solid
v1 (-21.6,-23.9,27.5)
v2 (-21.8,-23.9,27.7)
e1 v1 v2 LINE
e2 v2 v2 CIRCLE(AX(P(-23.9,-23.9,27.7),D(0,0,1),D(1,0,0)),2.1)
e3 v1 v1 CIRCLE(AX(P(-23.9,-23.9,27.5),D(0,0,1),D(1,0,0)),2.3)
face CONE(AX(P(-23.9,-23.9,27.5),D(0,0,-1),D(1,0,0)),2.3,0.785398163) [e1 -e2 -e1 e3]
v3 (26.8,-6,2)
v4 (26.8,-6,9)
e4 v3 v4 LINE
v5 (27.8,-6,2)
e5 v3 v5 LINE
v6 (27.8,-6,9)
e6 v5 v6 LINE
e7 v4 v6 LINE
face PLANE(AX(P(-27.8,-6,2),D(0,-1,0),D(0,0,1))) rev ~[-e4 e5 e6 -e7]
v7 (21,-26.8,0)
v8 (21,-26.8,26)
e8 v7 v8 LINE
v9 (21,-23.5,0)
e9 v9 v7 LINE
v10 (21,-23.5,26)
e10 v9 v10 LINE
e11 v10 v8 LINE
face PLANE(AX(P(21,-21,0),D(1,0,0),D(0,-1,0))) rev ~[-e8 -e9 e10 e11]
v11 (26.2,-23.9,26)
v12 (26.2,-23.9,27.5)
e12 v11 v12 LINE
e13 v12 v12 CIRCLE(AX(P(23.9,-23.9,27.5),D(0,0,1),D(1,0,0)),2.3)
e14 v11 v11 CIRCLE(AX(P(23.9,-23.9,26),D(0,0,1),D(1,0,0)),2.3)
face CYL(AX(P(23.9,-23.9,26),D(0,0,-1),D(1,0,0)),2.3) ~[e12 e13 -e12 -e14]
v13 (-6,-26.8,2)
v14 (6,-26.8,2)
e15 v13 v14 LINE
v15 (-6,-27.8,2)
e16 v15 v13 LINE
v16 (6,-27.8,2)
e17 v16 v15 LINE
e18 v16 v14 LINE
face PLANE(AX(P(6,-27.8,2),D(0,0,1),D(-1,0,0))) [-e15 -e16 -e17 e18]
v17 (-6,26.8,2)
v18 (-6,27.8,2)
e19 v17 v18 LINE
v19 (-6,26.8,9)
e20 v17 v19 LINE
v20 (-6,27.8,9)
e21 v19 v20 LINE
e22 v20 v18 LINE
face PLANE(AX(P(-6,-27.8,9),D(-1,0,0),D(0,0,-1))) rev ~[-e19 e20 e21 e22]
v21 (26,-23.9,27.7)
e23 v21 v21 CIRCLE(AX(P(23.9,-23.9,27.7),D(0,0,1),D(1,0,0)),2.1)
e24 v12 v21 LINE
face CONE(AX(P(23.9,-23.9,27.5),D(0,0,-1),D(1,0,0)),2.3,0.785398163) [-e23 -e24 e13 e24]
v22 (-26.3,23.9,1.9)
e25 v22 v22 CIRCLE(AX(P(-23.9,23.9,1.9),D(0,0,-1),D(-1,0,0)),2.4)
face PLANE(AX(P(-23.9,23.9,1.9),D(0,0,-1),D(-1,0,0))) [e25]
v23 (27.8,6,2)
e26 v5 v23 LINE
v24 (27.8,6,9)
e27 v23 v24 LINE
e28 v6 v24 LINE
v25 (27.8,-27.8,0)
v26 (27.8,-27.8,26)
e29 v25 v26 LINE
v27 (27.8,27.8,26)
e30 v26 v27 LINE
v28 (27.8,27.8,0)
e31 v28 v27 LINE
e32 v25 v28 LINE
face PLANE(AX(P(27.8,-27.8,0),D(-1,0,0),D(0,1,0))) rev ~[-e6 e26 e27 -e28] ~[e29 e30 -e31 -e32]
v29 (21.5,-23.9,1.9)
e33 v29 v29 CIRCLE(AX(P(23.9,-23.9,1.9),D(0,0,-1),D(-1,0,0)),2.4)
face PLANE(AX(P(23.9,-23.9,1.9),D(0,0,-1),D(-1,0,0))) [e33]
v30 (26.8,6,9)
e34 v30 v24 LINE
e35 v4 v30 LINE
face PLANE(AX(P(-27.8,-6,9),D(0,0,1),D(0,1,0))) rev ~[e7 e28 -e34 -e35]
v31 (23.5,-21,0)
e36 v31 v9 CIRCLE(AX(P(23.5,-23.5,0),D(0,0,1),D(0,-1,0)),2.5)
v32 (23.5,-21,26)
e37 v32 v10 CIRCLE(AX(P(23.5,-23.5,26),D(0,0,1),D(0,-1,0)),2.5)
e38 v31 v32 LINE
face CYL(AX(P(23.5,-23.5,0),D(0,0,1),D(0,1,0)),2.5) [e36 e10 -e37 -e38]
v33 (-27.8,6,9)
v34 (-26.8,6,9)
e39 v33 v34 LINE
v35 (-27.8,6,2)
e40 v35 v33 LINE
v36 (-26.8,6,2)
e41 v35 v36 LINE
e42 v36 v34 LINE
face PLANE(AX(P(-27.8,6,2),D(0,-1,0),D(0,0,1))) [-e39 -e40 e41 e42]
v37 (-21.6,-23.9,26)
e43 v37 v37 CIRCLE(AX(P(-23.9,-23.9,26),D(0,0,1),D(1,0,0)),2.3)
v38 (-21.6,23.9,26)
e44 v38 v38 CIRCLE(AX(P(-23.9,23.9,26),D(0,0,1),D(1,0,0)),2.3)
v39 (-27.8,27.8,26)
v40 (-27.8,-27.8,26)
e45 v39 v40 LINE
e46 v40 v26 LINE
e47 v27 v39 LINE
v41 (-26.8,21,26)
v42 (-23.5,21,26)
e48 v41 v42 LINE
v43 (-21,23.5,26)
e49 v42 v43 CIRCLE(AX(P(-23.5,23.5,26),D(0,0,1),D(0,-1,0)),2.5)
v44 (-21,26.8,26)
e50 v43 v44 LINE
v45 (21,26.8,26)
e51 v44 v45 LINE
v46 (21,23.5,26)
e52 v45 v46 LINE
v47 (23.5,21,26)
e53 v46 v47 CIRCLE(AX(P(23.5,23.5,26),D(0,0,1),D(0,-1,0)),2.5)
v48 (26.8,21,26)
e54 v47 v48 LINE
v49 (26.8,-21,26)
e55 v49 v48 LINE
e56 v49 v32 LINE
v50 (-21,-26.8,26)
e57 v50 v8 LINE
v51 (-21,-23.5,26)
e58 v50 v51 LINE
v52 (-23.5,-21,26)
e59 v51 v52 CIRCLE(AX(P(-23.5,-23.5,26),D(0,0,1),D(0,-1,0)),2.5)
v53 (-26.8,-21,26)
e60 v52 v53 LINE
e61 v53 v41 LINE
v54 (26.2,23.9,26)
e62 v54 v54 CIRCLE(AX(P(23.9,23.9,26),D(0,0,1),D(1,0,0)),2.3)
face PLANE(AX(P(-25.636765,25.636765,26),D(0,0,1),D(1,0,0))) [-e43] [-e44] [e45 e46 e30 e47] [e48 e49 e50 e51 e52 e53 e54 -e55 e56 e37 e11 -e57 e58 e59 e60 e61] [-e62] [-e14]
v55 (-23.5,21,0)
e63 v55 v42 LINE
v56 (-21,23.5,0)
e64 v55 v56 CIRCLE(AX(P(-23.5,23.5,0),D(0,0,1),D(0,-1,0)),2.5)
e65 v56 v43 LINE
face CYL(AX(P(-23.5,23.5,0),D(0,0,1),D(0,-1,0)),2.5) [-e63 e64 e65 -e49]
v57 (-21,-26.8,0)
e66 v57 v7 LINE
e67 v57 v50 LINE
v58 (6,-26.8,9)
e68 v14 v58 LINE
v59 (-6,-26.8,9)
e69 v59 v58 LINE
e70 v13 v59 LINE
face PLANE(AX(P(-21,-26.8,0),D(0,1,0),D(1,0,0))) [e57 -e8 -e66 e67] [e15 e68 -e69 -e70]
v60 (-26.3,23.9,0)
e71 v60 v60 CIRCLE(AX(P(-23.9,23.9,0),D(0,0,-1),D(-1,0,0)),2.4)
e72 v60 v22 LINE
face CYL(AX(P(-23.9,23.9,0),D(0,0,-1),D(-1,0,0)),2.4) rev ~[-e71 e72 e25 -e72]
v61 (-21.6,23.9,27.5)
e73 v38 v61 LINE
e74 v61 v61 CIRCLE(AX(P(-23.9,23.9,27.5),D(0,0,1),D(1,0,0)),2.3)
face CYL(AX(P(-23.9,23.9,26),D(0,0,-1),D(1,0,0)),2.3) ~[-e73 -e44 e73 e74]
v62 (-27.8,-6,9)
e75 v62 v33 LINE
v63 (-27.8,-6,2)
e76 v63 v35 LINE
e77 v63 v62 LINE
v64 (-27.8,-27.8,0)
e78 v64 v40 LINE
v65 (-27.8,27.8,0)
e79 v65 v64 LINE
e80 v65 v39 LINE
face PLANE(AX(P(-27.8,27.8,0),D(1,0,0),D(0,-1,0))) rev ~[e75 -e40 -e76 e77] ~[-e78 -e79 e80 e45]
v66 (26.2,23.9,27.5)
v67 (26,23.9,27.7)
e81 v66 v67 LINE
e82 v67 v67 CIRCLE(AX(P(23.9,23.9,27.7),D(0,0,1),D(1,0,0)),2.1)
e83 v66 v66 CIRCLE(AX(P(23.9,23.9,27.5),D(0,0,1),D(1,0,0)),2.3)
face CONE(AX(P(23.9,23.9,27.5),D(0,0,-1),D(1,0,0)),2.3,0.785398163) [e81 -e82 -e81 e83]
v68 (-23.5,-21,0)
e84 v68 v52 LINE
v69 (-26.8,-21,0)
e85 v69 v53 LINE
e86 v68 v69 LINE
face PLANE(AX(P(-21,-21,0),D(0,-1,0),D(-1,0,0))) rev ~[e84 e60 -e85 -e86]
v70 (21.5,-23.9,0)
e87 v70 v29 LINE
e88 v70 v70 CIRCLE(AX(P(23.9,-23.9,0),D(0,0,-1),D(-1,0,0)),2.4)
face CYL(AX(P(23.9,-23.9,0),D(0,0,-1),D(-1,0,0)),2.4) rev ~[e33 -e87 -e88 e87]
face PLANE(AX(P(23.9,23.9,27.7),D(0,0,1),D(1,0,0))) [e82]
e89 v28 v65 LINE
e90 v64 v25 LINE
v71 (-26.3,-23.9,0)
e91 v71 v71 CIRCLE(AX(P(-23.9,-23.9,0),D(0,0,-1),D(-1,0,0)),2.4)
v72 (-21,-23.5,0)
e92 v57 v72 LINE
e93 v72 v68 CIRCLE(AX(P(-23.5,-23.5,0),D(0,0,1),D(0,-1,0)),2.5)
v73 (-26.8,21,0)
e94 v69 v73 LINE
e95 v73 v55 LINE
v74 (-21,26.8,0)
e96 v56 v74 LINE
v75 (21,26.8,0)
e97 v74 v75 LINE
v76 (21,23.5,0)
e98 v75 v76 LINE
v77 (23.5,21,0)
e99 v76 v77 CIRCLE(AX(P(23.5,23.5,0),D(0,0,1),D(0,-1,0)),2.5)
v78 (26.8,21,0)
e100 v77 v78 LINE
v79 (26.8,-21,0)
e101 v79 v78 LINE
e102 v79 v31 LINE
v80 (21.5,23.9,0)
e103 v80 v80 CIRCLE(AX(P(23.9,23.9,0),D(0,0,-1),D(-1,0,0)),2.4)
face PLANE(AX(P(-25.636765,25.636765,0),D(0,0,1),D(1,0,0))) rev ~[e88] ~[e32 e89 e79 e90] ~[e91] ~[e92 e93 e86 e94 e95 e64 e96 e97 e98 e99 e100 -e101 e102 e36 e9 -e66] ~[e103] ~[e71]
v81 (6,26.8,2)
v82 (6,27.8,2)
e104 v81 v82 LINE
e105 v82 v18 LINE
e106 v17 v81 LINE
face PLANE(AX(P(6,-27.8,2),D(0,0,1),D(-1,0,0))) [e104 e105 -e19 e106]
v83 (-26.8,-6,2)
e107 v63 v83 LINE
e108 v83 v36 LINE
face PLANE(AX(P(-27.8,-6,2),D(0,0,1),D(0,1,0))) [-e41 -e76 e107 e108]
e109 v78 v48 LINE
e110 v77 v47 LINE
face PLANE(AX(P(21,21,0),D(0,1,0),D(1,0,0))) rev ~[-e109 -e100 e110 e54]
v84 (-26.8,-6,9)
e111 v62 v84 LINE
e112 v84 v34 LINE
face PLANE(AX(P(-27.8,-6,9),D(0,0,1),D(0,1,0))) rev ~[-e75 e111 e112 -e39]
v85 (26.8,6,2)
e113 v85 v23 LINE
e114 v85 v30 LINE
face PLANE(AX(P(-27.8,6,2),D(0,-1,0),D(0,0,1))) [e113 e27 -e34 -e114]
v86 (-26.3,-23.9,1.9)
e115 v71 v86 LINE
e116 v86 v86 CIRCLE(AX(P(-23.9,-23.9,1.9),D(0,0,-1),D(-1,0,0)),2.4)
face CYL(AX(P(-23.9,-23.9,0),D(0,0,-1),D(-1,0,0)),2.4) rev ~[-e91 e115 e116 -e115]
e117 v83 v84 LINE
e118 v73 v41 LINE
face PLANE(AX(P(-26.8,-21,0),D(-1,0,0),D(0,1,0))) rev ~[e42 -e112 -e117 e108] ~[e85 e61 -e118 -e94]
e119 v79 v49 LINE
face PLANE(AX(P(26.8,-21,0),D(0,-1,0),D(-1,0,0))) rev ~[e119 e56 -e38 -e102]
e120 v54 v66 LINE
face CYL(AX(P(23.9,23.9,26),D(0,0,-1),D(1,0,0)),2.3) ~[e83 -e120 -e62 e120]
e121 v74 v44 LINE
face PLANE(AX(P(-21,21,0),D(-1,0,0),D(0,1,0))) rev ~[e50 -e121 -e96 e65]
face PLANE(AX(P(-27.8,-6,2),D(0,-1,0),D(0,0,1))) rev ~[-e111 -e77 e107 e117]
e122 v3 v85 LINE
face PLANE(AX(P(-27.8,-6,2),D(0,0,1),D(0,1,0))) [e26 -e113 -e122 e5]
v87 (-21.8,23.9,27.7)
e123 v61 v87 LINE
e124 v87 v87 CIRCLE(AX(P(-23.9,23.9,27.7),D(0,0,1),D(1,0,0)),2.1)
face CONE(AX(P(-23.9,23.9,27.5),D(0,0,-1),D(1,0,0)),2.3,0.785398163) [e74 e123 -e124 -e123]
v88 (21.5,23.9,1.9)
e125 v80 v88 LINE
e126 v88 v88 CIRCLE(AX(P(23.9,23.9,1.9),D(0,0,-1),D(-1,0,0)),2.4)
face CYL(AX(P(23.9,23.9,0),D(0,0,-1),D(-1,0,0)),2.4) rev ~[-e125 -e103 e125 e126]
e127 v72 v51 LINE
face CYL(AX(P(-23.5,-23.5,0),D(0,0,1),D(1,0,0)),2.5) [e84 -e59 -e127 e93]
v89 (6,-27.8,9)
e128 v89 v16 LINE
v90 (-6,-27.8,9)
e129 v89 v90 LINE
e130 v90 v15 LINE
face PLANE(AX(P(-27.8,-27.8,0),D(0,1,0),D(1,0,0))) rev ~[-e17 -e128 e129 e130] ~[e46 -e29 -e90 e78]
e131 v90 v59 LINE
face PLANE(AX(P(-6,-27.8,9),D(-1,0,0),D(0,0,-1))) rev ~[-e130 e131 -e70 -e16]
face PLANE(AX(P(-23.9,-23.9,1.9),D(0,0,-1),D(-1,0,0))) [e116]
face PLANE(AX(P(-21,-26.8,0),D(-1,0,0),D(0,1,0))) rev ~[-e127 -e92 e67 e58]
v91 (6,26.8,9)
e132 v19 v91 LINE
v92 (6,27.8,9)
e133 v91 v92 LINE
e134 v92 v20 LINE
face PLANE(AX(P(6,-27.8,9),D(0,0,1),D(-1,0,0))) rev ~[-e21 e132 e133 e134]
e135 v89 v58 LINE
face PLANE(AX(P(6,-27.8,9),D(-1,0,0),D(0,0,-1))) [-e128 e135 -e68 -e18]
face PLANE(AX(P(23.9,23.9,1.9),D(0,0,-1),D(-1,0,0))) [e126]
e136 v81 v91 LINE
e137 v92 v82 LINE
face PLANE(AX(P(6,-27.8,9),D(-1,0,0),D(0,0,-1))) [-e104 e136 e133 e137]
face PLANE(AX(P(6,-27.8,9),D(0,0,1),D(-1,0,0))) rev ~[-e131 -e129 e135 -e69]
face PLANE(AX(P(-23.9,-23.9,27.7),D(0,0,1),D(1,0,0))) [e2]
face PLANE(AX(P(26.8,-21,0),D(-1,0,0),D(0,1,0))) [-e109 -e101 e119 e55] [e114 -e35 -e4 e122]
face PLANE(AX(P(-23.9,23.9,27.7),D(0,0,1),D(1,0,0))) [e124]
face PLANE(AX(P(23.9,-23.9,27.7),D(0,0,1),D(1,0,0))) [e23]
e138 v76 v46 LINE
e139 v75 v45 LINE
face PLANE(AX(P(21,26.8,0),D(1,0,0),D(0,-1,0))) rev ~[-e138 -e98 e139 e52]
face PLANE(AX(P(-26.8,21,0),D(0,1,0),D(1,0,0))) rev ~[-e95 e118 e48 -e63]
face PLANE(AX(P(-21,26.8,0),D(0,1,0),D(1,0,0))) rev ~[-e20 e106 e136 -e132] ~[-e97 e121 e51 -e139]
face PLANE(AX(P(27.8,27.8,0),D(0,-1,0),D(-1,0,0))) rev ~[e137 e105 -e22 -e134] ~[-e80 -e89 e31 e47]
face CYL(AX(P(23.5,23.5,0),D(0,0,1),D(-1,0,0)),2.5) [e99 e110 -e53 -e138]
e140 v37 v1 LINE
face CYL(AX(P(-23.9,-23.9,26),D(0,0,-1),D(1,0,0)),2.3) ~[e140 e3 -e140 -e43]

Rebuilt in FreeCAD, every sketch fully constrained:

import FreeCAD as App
import Part
import Sketcher
from FreeCAD import Vector


def edges_at(feature, points):
    """Names of the edges that pass closest to the given points."""
    edges = feature.Shape.Edges
    near = lambda p: min(range(len(edges)), key=lambda i: edges[i].distToShape(Part.Vertex(*p))[0])
    return sorted({f"Edge{near(p) + 1}" for p in points})

doc = App.newDocument("Part")
body = doc.addObject("PartDesign::Body", "Body")

# Sketch on XY plane
sketch1 = body.newObject("Sketcher::SketchObject", "Sketch")
sketch1.AttachmentSupport = (doc.getObject("XY_Plane"), [""])
sketch1.MapMode = "FlatFace"
sketch1.addGeometry([
    Part.LineSegment(Vector(-28, 28, 0), Vector(-28, -28, 0)),  # 0
    Part.LineSegment(Vector(-28, -28, 0), Vector(28, -28, 0)),  # 1
    Part.LineSegment(Vector(28, -28, 0), Vector(28, 28, 0)),  # 2
    Part.LineSegment(Vector(28, 28, 0), Vector(-28, 28, 0)),  # 3
    Part.LineSegment(Vector(21, 27, 0), Vector(21, 21, 0)),  # 4
    Part.LineSegment(Vector(21, 21, 0), Vector(27, 21, 0)),  # 5
    Part.LineSegment(Vector(27, 21, 0), Vector(27, -21, 0)),  # 6
    Part.LineSegment(Vector(27, -21, 0), Vector(21, -21, 0)),  # 7
    Part.LineSegment(Vector(21, -21, 0), Vector(21, -27, 0)),  # 8
    Part.LineSegment(Vector(21, -27, 0), Vector(-21, -27, 0)),  # 9
    Part.LineSegment(Vector(-21, -27, 0), Vector(-21, -21, 0)),  # 10
    Part.LineSegment(Vector(-21, -21, 0), Vector(-27, -21, 0)),  # 11
    Part.LineSegment(Vector(-27, -21, 0), Vector(-27, 21, 0)),  # 12
    Part.LineSegment(Vector(-27, 21, 0), Vector(-21, 21, 0)),  # 13
    Part.LineSegment(Vector(-21, 21, 0), Vector(-21, 27, 0)),  # 14
    Part.LineSegment(Vector(-21, 27, 0), Vector(21, 27, 0)),  # 15
], False)
sketch1.addConstraint([
    Sketcher.Constraint("Coincident", 0, 2, 1, 1),
    Sketcher.Constraint("Coincident", 1, 2, 2, 1),
    Sketcher.Constraint("Coincident", 2, 2, 3, 1),
    Sketcher.Constraint("Coincident", 3, 2, 0, 1),
    Sketcher.Constraint("Coincident", 4, 2, 5, 1),
    Sketcher.Constraint("Coincident", 5, 2, 6, 1),
    Sketcher.Constraint("Coincident", 6, 2, 7, 1),
    Sketcher.Constraint("Coincident", 7, 2, 8, 1),
    Sketcher.Constraint("Coincident", 8, 2, 9, 1),
    Sketcher.Constraint("Coincident", 9, 2, 10, 1),
    Sketcher.Constraint("Coincident", 10, 2, 11, 1),
    Sketcher.Constraint("Coincident", 11, 2, 12, 1),
    Sketcher.Constraint("Coincident", 12, 2, 13, 1),
    Sketcher.Constraint("Coincident", 13, 2, 14, 1),
    Sketcher.Constraint("Coincident", 14, 2, 15, 1),
    Sketcher.Constraint("Coincident", 15, 2, 4, 1),
    Sketcher.Constraint("Vertical", 0),
    Sketcher.Constraint("Horizontal", 1),
    Sketcher.Constraint("Vertical", 2),
    Sketcher.Constraint("Horizontal", 3),
    Sketcher.Constraint("Vertical", 4),
    Sketcher.Constraint("Horizontal", 5),
    Sketcher.Constraint("Vertical", 6),
    Sketcher.Constraint("Horizontal", 7),
    Sketcher.Constraint("Vertical", 8),
    Sketcher.Constraint("Horizontal", 9),
    Sketcher.Constraint("Vertical", 10),
    Sketcher.Constraint("Horizontal", 11),
    Sketcher.Constraint("Vertical", 12),
    Sketcher.Constraint("Horizontal", 13),
    Sketcher.Constraint("Vertical", 14),
    Sketcher.Constraint("Horizontal", 15),
    Sketcher.Constraint("Symmetric", 0, 2, 2, 2, -1, 1),
    Sketcher.Constraint("Symmetric", 4, 2, 10, 2, -1, 1),
    Sketcher.Constraint("Symmetric", 6, 2, 12, 2, -1, 1),
    Sketcher.Constraint("Symmetric", 8, 2, 14, 2, -1, 1),
    Sketcher.Constraint("Symmetric", 7, 2, 10, 2, -2),
    Sketcher.Constraint("Equal", 3, 0),
    Sketcher.Constraint("Equal", 13, 4),
    Sketcher.Constraint("Equal", 15, 6),
    Sketcher.Constraint("DistanceX", 9, 2, 9, 1, 42.0),
    Sketcher.Constraint("DistanceX", 1, 1, 1, 2, 55.6),
    Sketcher.Constraint("DistanceX", 5, 1, 5, 2, 5.8),
])
pad1 = body.newObject("PartDesign::Pad", "Pad")
pad1.Profile = sketch1
pad1.Length = 26
doc.recompute()

fillet = body.newObject("PartDesign::Fillet", "Fillet")
fillet.Base = (pad1, edges_at(pad1, [
    (21, -21, 13),
    (21, 21, 13),
    (-21, 21, 13),
    (-21, -21, 13),
]))
fillet.Radius = 2.5

# Sketch on XY plane
sketch2 = body.newObject("Sketcher::SketchObject", "Sketch001")
sketch2.AttachmentSupport = (doc.getObject("XY_Plane"), [""])
sketch2.MapMode = "FlatFace"
sketch2.addGeometry([
    Part.Circle(Vector(23.9, 23.9, 0), Vector(0, 0, 1), 2.4),
    Part.Circle(Vector(-23.9, 23.9, 0), Vector(0, 0, 1), 2.4),
    Part.Circle(Vector(-23.9, -23.9, 0), Vector(0, 0, 1), 2.4),
    Part.Circle(Vector(23.9, -23.9, 0), Vector(0, 0, 1), 2.4),
], False)
sketch2.addConstraint([
    Sketcher.Constraint("Equal", 0, 1),
    Sketcher.Constraint("Equal", 1, 2),
    Sketcher.Constraint("Equal", 2, 3),
    Sketcher.Constraint("Symmetric", 0, 3, 2, 3, -1, 1),
    Sketcher.Constraint("Symmetric", 1, 3, 3, 3, -1, 1),
    Sketcher.Constraint("Symmetric", 0, 3, 1, 3, -2),
    Sketcher.Constraint("Diameter", 0, 4.8),
    Sketcher.Constraint("DistanceX", -1, 1, 0, 3, 23.9),
    Sketcher.Constraint("DistanceY", -1, 1, 0, 3, 23.9),
])
pocket1 = body.newObject("PartDesign::Pocket", "Pocket")
pocket1.Profile = sketch2
pocket1.Length = 1.9
pocket1.Reversed = True

# Sketch on XY plane
sketch3 = body.newObject("Sketcher::SketchObject", "Sketch002")
sketch3.AttachmentSupport = (doc.getObject("XY_Plane"), [""])
sketch3.MapMode = "FlatFace"
sketch3.AttachmentOffset = App.Placement(Vector(0, 0, 26), App.Rotation())
sketch3.addGeometry([
    Part.Circle(Vector(-23.9, 23.9, 0), Vector(0, 0, 1), 2.3),
    Part.Circle(Vector(23.9, 23.9, 0), Vector(0, 0, 1), 2.3),
    Part.Circle(Vector(23.9, -23.9, 0), Vector(0, 0, 1), 2.3),
    Part.Circle(Vector(-23.9, -23.9, 0), Vector(0, 0, 1), 2.3),
], False)
sketch3.addConstraint([
    Sketcher.Constraint("Equal", 0, 1),
    Sketcher.Constraint("Equal", 1, 2),
    Sketcher.Constraint("Equal", 2, 3),
    Sketcher.Constraint("Symmetric", 0, 3, 2, 3, -1, 1),
    Sketcher.Constraint("Symmetric", 1, 3, 3, 3, -1, 1),
    Sketcher.Constraint("Symmetric", 0, 3, 1, 3, -2),
    Sketcher.Constraint("Diameter", 0, 4.6),
    Sketcher.Constraint("DistanceX", 0, 3, -1, 1, 23.9),
    Sketcher.Constraint("DistanceY", -1, 1, 0, 3, 23.9),
])
pad2 = body.newObject("PartDesign::Pad", "Pad001")
pad2.Profile = sketch3
pad2.Length = 1.7
doc.recompute()

chamfer = body.newObject("PartDesign::Chamfer", "Chamfer")
chamfer.Base = (pad2, edges_at(pad2, [
    (-26.2, 23.9, 27.7),
    (21.6, 23.9, 27.7),
    (21.6, -23.9, 27.7),
    (-26.2, -23.9, 27.7),
]))
chamfer.Size = 0.2

# Sketch on XZ plane
sketch4 = body.newObject("Sketcher::SketchObject", "Sketch003")
sketch4.AttachmentSupport = (doc.getObject("XZ_Plane"), [""])
sketch4.MapMode = "FlatFace"
sketch4.AttachmentOffset = App.Placement(Vector(0, 0, 27.8), App.Rotation())
sketch4.addGeometry([
    Part.LineSegment(Vector(6, 2, 0), Vector(6, 9, 0)),
    Part.LineSegment(Vector(6, 9, 0), Vector(-6, 9, 0)),
    Part.LineSegment(Vector(-6, 9, 0), Vector(-6, 2, 0)),
    Part.LineSegment(Vector(-6, 2, 0), Vector(6, 2, 0)),
], False)
sketch4.addConstraint([
    Sketcher.Constraint("Coincident", 0, 2, 1, 1),
    Sketcher.Constraint("Coincident", 1, 2, 2, 1),
    Sketcher.Constraint("Coincident", 2, 2, 3, 1),
    Sketcher.Constraint("Coincident", 3, 2, 0, 1),
    Sketcher.Constraint("Vertical", 0),
    Sketcher.Constraint("Horizontal", 1),
    Sketcher.Constraint("Vertical", 2),
    Sketcher.Constraint("Horizontal", 3),
    Sketcher.Constraint("DistanceX", 1, 2, 1, 1, 12.0),
    Sketcher.Constraint("DistanceY", 0, 1, 0, 2, 7.0),
    Sketcher.Constraint("DistanceX", -1, 1, 0, 2, 6.0),
    Sketcher.Constraint("DistanceY", -1, 1, 0, 2, 9.0),
])
pocket2 = body.newObject("PartDesign::Pocket", "Pocket001")
pocket2.Profile = sketch4
pocket2.Length = 68.7

# Sketch on YZ plane
sketch5 = body.newObject("Sketcher::SketchObject", "Sketch004")
sketch5.AttachmentSupport = (doc.getObject("YZ_Plane"), [""])
sketch5.MapMode = "FlatFace"
sketch5.AttachmentOffset = App.Placement(Vector(0, 0, -27.8), App.Rotation())
sketch5.addGeometry([
    Part.LineSegment(Vector(6, 2, 0), Vector(-6, 2, 0)),
    Part.LineSegment(Vector(-6, 2, 0), Vector(-6, 9, 0)),
    Part.LineSegment(Vector(-6, 9, 0), Vector(6, 9, 0)),
    Part.LineSegment(Vector(6, 9, 0), Vector(6, 2, 0)),
], False)
sketch5.addConstraint([
    Sketcher.Constraint("Coincident", 0, 2, 1, 1),
    Sketcher.Constraint("Coincident", 1, 2, 2, 1),
    Sketcher.Constraint("Coincident", 2, 2, 3, 1),
    Sketcher.Constraint("Coincident", 3, 2, 0, 1),
    Sketcher.Constraint("Horizontal", 0),
    Sketcher.Constraint("Vertical", 1),
    Sketcher.Constraint("Horizontal", 2),
    Sketcher.Constraint("Vertical", 3),
    Sketcher.Constraint("DistanceX", 0, 2, 0, 1, 12.0),
    Sketcher.Constraint("DistanceY", 1, 1, 1, 2, 7.0),
    Sketcher.Constraint("DistanceX", 0, 2, -1, 1, 6.0),
    Sketcher.Constraint("DistanceY", -1, 1, 0, 2, 2.0),
])
pocket3 = body.newObject("PartDesign::Pocket", "Pocket002")
pocket3.Profile = sketch5
pocket3.Length = 55.6
pocket3.Reversed = True

doc.recompute()
